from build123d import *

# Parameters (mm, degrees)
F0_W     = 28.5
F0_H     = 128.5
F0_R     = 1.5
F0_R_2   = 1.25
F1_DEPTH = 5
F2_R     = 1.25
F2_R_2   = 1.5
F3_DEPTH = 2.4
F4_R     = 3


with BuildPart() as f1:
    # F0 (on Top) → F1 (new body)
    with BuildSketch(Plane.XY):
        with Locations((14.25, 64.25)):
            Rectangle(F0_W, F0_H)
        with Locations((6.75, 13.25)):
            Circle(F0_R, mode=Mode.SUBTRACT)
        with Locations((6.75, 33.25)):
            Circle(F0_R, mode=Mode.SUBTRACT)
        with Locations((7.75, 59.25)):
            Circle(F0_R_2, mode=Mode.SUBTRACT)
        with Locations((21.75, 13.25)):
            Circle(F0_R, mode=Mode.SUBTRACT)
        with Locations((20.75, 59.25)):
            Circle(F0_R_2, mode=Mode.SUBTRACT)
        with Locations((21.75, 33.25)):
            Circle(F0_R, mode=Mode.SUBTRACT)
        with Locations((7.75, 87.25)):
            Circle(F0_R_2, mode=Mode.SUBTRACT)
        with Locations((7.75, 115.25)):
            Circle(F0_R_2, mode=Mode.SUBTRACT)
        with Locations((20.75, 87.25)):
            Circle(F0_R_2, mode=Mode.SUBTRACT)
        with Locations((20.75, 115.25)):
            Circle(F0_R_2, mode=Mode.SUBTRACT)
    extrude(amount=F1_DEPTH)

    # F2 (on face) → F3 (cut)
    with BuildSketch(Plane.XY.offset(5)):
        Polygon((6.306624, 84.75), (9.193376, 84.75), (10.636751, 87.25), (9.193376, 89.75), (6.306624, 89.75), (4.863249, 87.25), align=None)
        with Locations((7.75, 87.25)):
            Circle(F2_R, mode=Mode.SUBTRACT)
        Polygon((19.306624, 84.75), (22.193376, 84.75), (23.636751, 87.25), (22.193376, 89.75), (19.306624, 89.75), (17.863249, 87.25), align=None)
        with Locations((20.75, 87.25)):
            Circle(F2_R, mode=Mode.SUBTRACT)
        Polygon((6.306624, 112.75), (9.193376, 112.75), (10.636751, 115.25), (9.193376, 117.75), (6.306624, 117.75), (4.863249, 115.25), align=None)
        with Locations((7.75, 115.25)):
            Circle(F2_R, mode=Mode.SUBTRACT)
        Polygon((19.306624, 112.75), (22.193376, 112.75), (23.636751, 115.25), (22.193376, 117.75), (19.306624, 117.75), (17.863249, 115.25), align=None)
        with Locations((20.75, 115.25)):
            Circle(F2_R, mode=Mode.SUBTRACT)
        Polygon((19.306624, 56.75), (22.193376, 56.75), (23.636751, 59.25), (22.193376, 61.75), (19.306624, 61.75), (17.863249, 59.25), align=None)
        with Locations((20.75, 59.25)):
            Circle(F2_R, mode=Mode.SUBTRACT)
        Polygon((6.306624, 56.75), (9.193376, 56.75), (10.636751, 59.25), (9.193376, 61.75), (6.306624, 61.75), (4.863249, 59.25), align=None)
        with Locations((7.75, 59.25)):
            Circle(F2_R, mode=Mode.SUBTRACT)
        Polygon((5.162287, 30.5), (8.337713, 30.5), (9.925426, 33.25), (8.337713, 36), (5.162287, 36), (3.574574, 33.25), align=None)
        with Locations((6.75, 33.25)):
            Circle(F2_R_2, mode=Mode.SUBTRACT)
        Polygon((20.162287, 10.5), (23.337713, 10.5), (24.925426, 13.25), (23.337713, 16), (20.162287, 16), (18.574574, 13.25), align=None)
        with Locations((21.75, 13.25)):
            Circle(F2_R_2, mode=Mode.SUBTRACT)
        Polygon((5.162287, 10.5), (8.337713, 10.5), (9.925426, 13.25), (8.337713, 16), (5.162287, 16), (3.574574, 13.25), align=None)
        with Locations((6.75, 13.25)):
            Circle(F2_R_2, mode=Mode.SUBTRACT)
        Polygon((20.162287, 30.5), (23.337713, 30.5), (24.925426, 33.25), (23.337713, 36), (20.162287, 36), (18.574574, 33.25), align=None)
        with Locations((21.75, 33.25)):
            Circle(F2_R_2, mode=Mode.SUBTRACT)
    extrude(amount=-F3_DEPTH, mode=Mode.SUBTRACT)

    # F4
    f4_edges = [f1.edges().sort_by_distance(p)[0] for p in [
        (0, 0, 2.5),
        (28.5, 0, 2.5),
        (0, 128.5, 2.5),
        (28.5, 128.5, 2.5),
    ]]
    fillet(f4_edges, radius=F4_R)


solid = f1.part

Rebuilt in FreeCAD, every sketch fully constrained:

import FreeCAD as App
import Part
import Sketcher
from FreeCAD import Vector
Q = App.Units.Quantity


def edges_at(feature, points):
    """Names of the edges that pass closest to the given points."""
    edges = feature.Shape.Edges
    near = lambda p: min(range(len(edges)), key=lambda i: edges[i].distToShape(Part.Vertex(*p))[0])
    return sorted({f"Edge{near(p) + 1}" for p in points})


def add_polygon(sketch, points):
    """Adds a closed chain of lines whose ends are joined by coincident constraints."""
    first, n = sketch.GeometryCount, len(points)
    for a, b in zip(points, points[1:] + points[:1]):
        sketch.addGeometry(Part.LineSegment(App.Vector(*a, 0), App.Vector(*b, 0)), False)
    for i in range(n):
        sketch.addConstraint(Sketcher.Constraint("Coincident", first + i, 2, first + (i + 1) % n, 1))

doc = App.newDocument("Part")
body = doc.addObject("PartDesign::Body", "Body")

sketch1 = body.newObject("Sketcher::SketchObject", "Sketch")
sketch1.AttachmentSupport = (doc.getObject("XY_Plane"), [""])
sketch1.MapMode = "FlatFace"
add_polygon(sketch1, [(0, 128.5), (0, 0), (28.5, 0), (28.5, 128.5)])
sketch1.addGeometry(Part.Circle(Vector(6.8, 13.2, 0), Vector(0, 0, 1), 1.5), False)
sketch1.addGeometry(Part.Circle(Vector(6.8, 33.2, 0), Vector(0, 0, 1), 1.5), False)
sketch1.addGeometry(Part.Circle(Vector(7.8, 59.2, 0), Vector(0, 0, 1), 1.2), False)
sketch1.addGeometry(Part.Circle(Vector(21.8, 13.2, 0), Vector(0, 0, 1), 1.5), False)
sketch1.addGeometry(Part.Circle(Vector(21.8, 33.2, 0), Vector(0, 0, 1), 1.5), False)
sketch1.addGeometry(Part.Circle(Vector(20.8, 59.2, 0), Vector(0, 0, 1), 1.2), False)
sketch1.addGeometry(Part.Circle(Vector(7.8, 87.2, 0), Vector(0, 0, 1), 1.2), False)
sketch1.addGeometry(Part.Circle(Vector(7.8, 115.2, 0), Vector(0, 0, 1), 1.2), False)
sketch1.addGeometry(Part.Circle(Vector(20.8, 87.2, 0), Vector(0, 0, 1), 1.2), False)
sketch1.addGeometry(Part.Circle(Vector(20.8, 115.2, 0), Vector(0, 0, 1), 1.2), False)
sketch1.addConstraint([
    Sketcher.Constraint("Vertical", 0),
    Sketcher.Constraint("Horizontal", 1),
    Sketcher.Constraint("Vertical", 2),
    Sketcher.Constraint("Horizontal", 3),
    Sketcher.Constraint("Coincident", 0, 2, -1, 1),
    Sketcher.Constraint("Equal", 4, 5),
    Sketcher.Constraint("Equal", 5, 7),
    Sketcher.Constraint("Equal", 7, 8),
    Sketcher.Constraint("Equal", 6, 9),
    Sketcher.Constraint("Equal", 9, 10),
    Sketcher.Constraint("Equal", 10, 11),
    Sketcher.Constraint("Equal", 11, 12),
    Sketcher.Constraint("Equal", 12, 13),
    Sketcher.Constraint("Horizontal", 4, 3, 7, 3),
    Sketcher.Constraint("Horizontal", 5, 3, 8, 3),
    Sketcher.Constraint("Horizontal", 6, 3, 9, 3),
    Sketcher.Constraint("Horizontal", 10, 3, 12, 3),
    Sketcher.Constraint("Horizontal", 11, 3, 13, 3),
    Sketcher.Constraint("Vertical", 4, 3, 5, 3),
    Sketcher.Constraint("Vertical", 7, 3, 8, 3),
    Sketcher.Constraint("Vertical", 6, 3, 10, 3),
    Sketcher.Constraint("Vertical", 10, 3, 11, 3),
    Sketcher.Constraint("Vertical", 9, 3, 12, 3),
    Sketcher.Constraint("Vertical", 12, 3, 13, 3),
    Sketcher.Constraint("Diameter", 4, Q("3 mm")),
    Sketcher.Constraint("Diameter", 6, Q("2.5 mm")),
    Sketcher.Constraint("DistanceX", 1, 1, 1, 2, Q("28.5 mm")),
    Sketcher.Constraint("DistanceY", 0, 2, 0, 1, Q("128.5 mm")),
    Sketcher.Constraint("DistanceY", 4, 3, 5, 3, Q("20 mm")),
    Sketcher.Constraint("DistanceX", 5, 3, 6, 3, Q("1 mm")),
    Sketcher.Constraint("DistanceY", 5, 3, 6, 3, Q("26 mm")),
    Sketcher.Constraint("DistanceX", 4, 3, 7, 3, Q("15 mm")),
    Sketcher.Constraint("DistanceX", 6, 3, 9, 3, Q("13 mm")),
    Sketcher.Constraint("DistanceY", 6, 3, 10, 3, Q("28 mm")),
    Sketcher.Constraint("DistanceY", 10, 3, 11, 3, Q("28 mm")),
    Sketcher.Constraint("DistanceX", -1, 1, 4, 3, Q("6.75 mm")),
    Sketcher.Constraint("DistanceY", -1, 1, 4, 3, Q("13.25 mm")),
])
pad1 = body.newObject("PartDesign::Pad", "Pad")
pad1.Profile = sketch1
pad1.Length = 5

sketch2 = body.newObject("Sketcher::SketchObject", "Sketch001")
sketch2.AttachmentSupport = (doc.getObject("XY_Plane"), [""])
sketch2.MapMode = "FlatFace"
sketch2.AttachmentOffset = App.Placement(Vector(0, 0, 5), App.Rotation())
add_polygon(sketch2, [(6.3, 84.8), (9.2, 84.8), (10.6, 87.2), (9.2, 89.8), (6.3, 89.8), (4.9, 87.2)])
sketch2.addGeometry(Part.Circle(Vector(7.8, 87.2, 0), Vector(0, 0, 1), 1.2), False)
add_polygon(sketch2, [(19.3, 84.8), (22.2, 84.8), (23.6, 87.2), (22.2, 89.8), (19.3, 89.8), (17.9, 87.2)])
sketch2.addGeometry(Part.Circle(Vector(20.8, 87.2, 0), Vector(0, 0, 1), 1.2), False)
add_polygon(sketch2, [(6.3, 112.8), (9.2, 112.8), (10.6, 115.2), (9.2, 117.8), (6.3, 117.8), (4.9, 115.2)])
sketch2.addGeometry(Part.Circle(Vector(7.8, 115.2, 0), Vector(0, 0, 1), 1.2), False)
add_polygon(sketch2, [(19.3, 112.8), (22.2, 112.8), (23.6, 115.2), (22.2, 117.8), (19.3, 117.8), (17.9, 115.2)])
sketch2.addGeometry(Part.Circle(Vector(20.8, 115.2, 0), Vector(0, 0, 1), 1.2), False)
add_polygon(sketch2, [(19.3, 56.8), (22.2, 56.8), (23.6, 59.2), (22.2, 61.8), (19.3, 61.8), (17.9, 59.2)])
sketch2.addGeometry(Part.Circle(Vector(20.8, 59.2, 0), Vector(0, 0, 1), 1.2), False)
add_polygon(sketch2, [(6.3, 56.8), (9.2, 56.8), (10.6, 59.2), (9.2, 61.8), (6.3, 61.8), (4.9, 59.2)])
sketch2.addGeometry(Part.Circle(Vector(7.8, 59.2, 0), Vector(0, 0, 1), 1.2), False)
add_polygon(sketch2, [(5.2, 30.5), (8.3, 30.5), (9.9, 33.2), (8.3, 36), (5.2, 36), (3.6, 33.2)])
sketch2.addGeometry(Part.Circle(Vector(6.8, 33.2, 0), Vector(0, 0, 1), 1.5), False)
add_polygon(sketch2, [(20.2, 10.5), (23.3, 10.5), (24.9, 13.2), (23.3, 16), (20.2, 16), (18.6, 13.2)])
sketch2.addGeometry(Part.Circle(Vector(21.8, 13.2, 0), Vector(0, 0, 1), 1.5), False)
add_polygon(sketch2, [(5.2, 10.5), (8.3, 10.5), (9.9, 13.2), (8.3, 16), (5.2, 16), (3.6, 13.2)])
sketch2.addGeometry(Part.Circle(Vector(6.8, 13.2, 0), Vector(0, 0, 1), 1.5), False)
add_polygon(sketch2, [(20.2, 30.5), (23.3, 30.5), (24.9, 33.2), (23.3, 36), (20.2, 36), (18.6, 33.2)])
sketch2.addGeometry(Part.Circle(Vector(21.8, 33.2, 0), Vector(0, 0, 1), 1.5), False)
sketch2.addConstraint([
    Sketcher.Constraint("Horizontal", 0),
    Sketcher.Constraint("Horizontal", 3),
    Sketcher.Constraint("Horizontal", 7),
    Sketcher.Constraint("Horizontal", 10),
    Sketcher.Constraint("Horizontal", 14),
    Sketcher.Constraint("Horizontal", 17),
    Sketcher.Constraint("Horizontal", 21),
    Sketcher.Constraint("Horizontal", 24),
    Sketcher.Constraint("Horizontal", 28),
    Sketcher.Constraint("Horizontal", 31),
    Sketcher.Constraint("Horizontal", 35),
    Sketcher.Constraint("Horizontal", 38),
    Sketcher.Constraint("Horizontal", 42),
    Sketcher.Constraint("Horizontal", 45),
    Sketcher.Constraint("Horizontal", 49),
    Sketcher.Constraint("Horizontal", 52),
    Sketcher.Constraint("Horizontal", 56),
    Sketcher.Constraint("Horizontal", 59),
    Sketcher.Constraint("Horizontal", 63),
    Sketcher.Constraint("Horizontal", 66),
    Sketcher.Constraint("Equal", 6, 13),
    Sketcher.Constraint("Equal", 13, 20),
    Sketcher.Constraint("Equal", 20, 27),
    Sketcher.Constraint("Equal", 27, 34),
    Sketcher.Constraint("Equal", 34, 41),
    Sketcher.Constraint("Equal", 48, 55),
    Sketcher.Constraint("Equal", 55, 62),
    Sketcher.Constraint("Equal", 62, 69),
    Sketcher.Constraint("Parallel", 1, 4),
    Sketcher.Constraint("Parallel", 2, 5),
    Sketcher.Constraint("Parallel", 4, 8),
    Sketcher.Constraint("Parallel", 5, 9),
    Sketcher.Constraint("Parallel", 8, 11),
    Sketcher.Constraint("Parallel", 9, 12),
    Sketcher.Constraint("Parallel", 11, 15),
    Sketcher.Constraint("Parallel", 12, 16),
    Sketcher.Constraint("Parallel", 15, 18),
    Sketcher.Constraint("Parallel", 16, 19),
    Sketcher.Constraint("Parallel", 18, 22),
    Sketcher.Constraint("Parallel", 19, 23),
    Sketcher.Constraint("Parallel", 22, 25),
    Sketcher.Constraint("Parallel", 23, 26),
    Sketcher.Constraint("Parallel", 25, 29),
    Sketcher.Constraint("Parallel", 26, 30),
    Sketcher.Constraint("Parallel", 29, 32),
    Sketcher.Constraint("Parallel", 30, 33),
    Sketcher.Constraint("Parallel", 32, 36),
    Sketcher.Constraint("Parallel", 33, 37),
    Sketcher.Constraint("Parallel", 36, 39),
    Sketcher.Constraint("Parallel", 37, 40),
    Sketcher.Constraint("Parallel", 39, 43),
    Sketcher.Constraint("Parallel", 40, 44),
    Sketcher.Constraint("Parallel", 43, 46),
    Sketcher.Constraint("Parallel", 44, 47),
    Sketcher.Constraint("Parallel", 46, 50),
    Sketcher.Constraint("Parallel", 47, 51),
    Sketcher.Constraint("Parallel", 50, 53),
    Sketcher.Constraint("Parallel", 51, 54),
    Sketcher.Constraint("Parallel", 53, 57),
    Sketcher.Constraint("Parallel", 54, 58),
    Sketcher.Constraint("Parallel", 57, 60),
    Sketcher.Constraint("Parallel", 58, 61),
    Sketcher.Constraint("Parallel", 60, 64),
    Sketcher.Constraint("Parallel", 61, 65),
    Sketcher.Constraint("Parallel", 64, 67),
    Sketcher.Constraint("Parallel", 65, 68),
    Sketcher.Constraint("Horizontal", 6, 3, 13, 3),
    Sketcher.Constraint("Horizontal", 20, 3, 27, 3),
    Sketcher.Constraint("Horizontal", 34, 3, 41, 3),
    Sketcher.Constraint("Horizontal", 55, 3, 62, 3),
    Sketcher.Constraint("Horizontal", 48, 3, 69, 3),
    Sketcher.Constraint("Horizontal", 13, 3, 1, 2),
    Sketcher.Constraint("Horizontal", 1, 2, 4, 2),
    Sketcher.Constraint("Horizontal", 5, 2, 7, 2),
    Sketcher.Constraint("Horizontal", 4, 2, 8, 2),
    Sketcher.Constraint("Horizontal", 3, 2, 9, 2),
    Sketcher.Constraint("Horizontal", 8, 2, 11, 2),
    Sketcher.Constraint("Horizontal", 27, 3, 15, 2),
    Sketcher.Constraint("Horizontal", 15, 2, 18, 2),
    Sketcher.Constraint("Horizontal", 19, 2, 21, 2),
    Sketcher.Constraint("Horizontal", 18, 2, 22, 2),
    Sketcher.Constraint("Horizontal", 17, 2, 23, 2),
    Sketcher.Constraint("Horizontal", 22, 2, 25, 2),
    Sketcher.Constraint("Horizontal", 41, 3, 29, 2),
    Sketcher.Constraint("Horizontal", 29, 2, 32, 2),
    Sketcher.Constraint("Horizontal", 33, 2, 35, 2),
    Sketcher.Constraint("Horizontal", 32, 2, 36, 2),
    Sketcher.Constraint("Horizontal", 31, 2, 37, 2),
    Sketcher.Constraint("Horizontal", 36, 2, 39, 2),
    Sketcher.Constraint("Horizontal", 69, 3, 43, 2),
    Sketcher.Constraint("Horizontal", 43, 2, 46, 2),
    Sketcher.Constraint("Horizontal", 62, 3, 50, 2),
    Sketcher.Constraint("Horizontal", 50, 2, 53, 2),
    Sketcher.Constraint("Horizontal", 54, 2, 56, 2),
    Sketcher.Constraint("Horizontal", 53, 2, 57, 2),
    Sketcher.Constraint("Horizontal", 52, 2, 58, 2),
    Sketcher.Constraint("Horizontal", 57, 2, 60, 2),
    Sketcher.Constraint("Horizontal", 47, 2, 63, 2),
    Sketcher.Constraint("Horizontal", 46, 2, 64, 2),
    Sketcher.Constraint("Horizontal", 45, 2, 65, 2),
    Sketcher.Constraint("Horizontal", 64, 2, 67, 2),
    Sketcher.Constraint("Vertical", 6, 3, 20, 3),
    Sketcher.Constraint("Vertical", 13, 3, 27, 3),
    Sketcher.Constraint("Vertical", 27, 3, 34, 3),
    Sketcher.Constraint("Vertical", 20, 3, 41, 3),
    Sketcher.Constraint("Vertical", 48, 3, 62, 3),
    Sketcher.Constraint("Vertical", 55, 3, 69, 3),
    Sketcher.Constraint("Vertical", 0, 2, 2, 2),
    Sketcher.Constraint("Vertical", 3, 2, 5, 2),
    Sketcher.Constraint("Vertical", 2, 2, 14, 2),
    Sketcher.Constraint("Vertical", 1, 2, 15, 2),
    Sketcher.Constraint("Vertical", 14, 2, 16, 2),
    Sketcher.Constraint("Vertical", 5, 2, 17, 2),
    Sketcher.Constraint("Vertical", 9, 2, 21, 2),
    Sketcher.Constraint("Vertical", 12, 2, 24, 2),
    Sketcher.Constraint("Vertical", 23, 2, 28, 2),
    Sketcher.Constraint("Vertical", 22, 2, 29, 2),
    Sketcher.Constraint("Vertical", 28, 2, 30, 2),
    Sketcher.Constraint("Vertical", 26, 2, 31, 2),
    Sketcher.Constraint("Vertical", 16, 2, 35, 2),
    Sketcher.Constraint("Vertical", 19, 2, 38, 2),
    Sketcher.Constraint("Vertical", 42, 2, 44, 2),
    Sketcher.Constraint("Vertical", 49, 2, 51, 2),
    Sketcher.Constraint("Vertical", 44, 2, 56, 2),
    Sketcher.Constraint("Vertical", 43, 2, 57, 2),
    Sketcher.Constraint("Vertical", 47, 2, 59, 2),
    Sketcher.Constraint("Vertical", 51, 2, 63, 2),
    Sketcher.Constraint("Vertical", 54, 2, 66, 2),
    Sketcher.Constraint("Equal", 3, 7),
    Sketcher.Constraint("Equal", 45, 49),
    Sketcher.Constraint("Diameter", 48, Q("3 mm")),
    Sketcher.Constraint("Diameter", 6, Q("2.5 mm")),
    Sketcher.Constraint("Angle", 1, Q("60.000012 deg")),
    Sketcher.Constraint("DistanceY", -1, 1, 44, 2, Q("36 mm")),
    Sketcher.Constraint("DistanceY", -1, 1, 51, 2, Q("16 mm")),
    Sketcher.Constraint("DistanceY", -1, 1, 42, 2, Q("30.5 mm")),
    Sketcher.Constraint("DistanceX", -1, 1, 6, 3, Q("7.75 mm")),
    Sketcher.Constraint("DistanceY", -1, 1, 6, 3, Q("87.25 mm")),
    Sketcher.Constraint("DistanceX", -1, 1, 13, 3, Q("20.75 mm")),
    Sketcher.Constraint("DistanceY", -1, 1, 20, 3, Q("115.25 mm")),
    Sketcher.Constraint("DistanceY", -1, 1, 34, 3, Q("59.25 mm")),
    Sketcher.Constraint("DistanceX", -1, 1, 48, 3, Q("6.75 mm")),
    Sketcher.Constraint("DistanceX", -1, 1, 55, 3, Q("21.75 mm")),
    Sketcher.Constraint("DistanceY", -1, 1, 0, 2, Q("84.75 mm")),
    Sketcher.Constraint("DistanceX", 0, 1, 0, 2, Q("2.886752 mm")),
    Sketcher.Constraint("DistanceX", 42, 1, 42, 2, Q("3.175426 mm")),
    Sketcher.Constraint("DistanceX", -1, 1, 1, 2, Q("10.636751 mm")),
    Sketcher.Constraint("DistanceX", -1, 1, 8, 2, Q("23.636751 mm")),
    Sketcher.Constraint("DistanceX", -1, 1, 42, 2, Q("8.337713 mm")),
    Sketcher.Constraint("DistanceX", -1, 1, 49, 2, Q("23.337713 mm")),
])
pocket1 = body.newObject("PartDesign::Pocket", "Pocket")
pocket1.Profile = sketch2
pocket1.Length = 2.4
doc.recompute()

fillet = body.newObject("PartDesign::Fillet", "Fillet")
fillet.Base = (pocket1, edges_at(pocket1, [
    (0, 0, 2.5),
    (28.5, 0, 2.5),
    (0, 128.5, 2.5),
    (28.5, 128.5, 2.5),
]))
fillet.Radius = 3

doc.recompute()
